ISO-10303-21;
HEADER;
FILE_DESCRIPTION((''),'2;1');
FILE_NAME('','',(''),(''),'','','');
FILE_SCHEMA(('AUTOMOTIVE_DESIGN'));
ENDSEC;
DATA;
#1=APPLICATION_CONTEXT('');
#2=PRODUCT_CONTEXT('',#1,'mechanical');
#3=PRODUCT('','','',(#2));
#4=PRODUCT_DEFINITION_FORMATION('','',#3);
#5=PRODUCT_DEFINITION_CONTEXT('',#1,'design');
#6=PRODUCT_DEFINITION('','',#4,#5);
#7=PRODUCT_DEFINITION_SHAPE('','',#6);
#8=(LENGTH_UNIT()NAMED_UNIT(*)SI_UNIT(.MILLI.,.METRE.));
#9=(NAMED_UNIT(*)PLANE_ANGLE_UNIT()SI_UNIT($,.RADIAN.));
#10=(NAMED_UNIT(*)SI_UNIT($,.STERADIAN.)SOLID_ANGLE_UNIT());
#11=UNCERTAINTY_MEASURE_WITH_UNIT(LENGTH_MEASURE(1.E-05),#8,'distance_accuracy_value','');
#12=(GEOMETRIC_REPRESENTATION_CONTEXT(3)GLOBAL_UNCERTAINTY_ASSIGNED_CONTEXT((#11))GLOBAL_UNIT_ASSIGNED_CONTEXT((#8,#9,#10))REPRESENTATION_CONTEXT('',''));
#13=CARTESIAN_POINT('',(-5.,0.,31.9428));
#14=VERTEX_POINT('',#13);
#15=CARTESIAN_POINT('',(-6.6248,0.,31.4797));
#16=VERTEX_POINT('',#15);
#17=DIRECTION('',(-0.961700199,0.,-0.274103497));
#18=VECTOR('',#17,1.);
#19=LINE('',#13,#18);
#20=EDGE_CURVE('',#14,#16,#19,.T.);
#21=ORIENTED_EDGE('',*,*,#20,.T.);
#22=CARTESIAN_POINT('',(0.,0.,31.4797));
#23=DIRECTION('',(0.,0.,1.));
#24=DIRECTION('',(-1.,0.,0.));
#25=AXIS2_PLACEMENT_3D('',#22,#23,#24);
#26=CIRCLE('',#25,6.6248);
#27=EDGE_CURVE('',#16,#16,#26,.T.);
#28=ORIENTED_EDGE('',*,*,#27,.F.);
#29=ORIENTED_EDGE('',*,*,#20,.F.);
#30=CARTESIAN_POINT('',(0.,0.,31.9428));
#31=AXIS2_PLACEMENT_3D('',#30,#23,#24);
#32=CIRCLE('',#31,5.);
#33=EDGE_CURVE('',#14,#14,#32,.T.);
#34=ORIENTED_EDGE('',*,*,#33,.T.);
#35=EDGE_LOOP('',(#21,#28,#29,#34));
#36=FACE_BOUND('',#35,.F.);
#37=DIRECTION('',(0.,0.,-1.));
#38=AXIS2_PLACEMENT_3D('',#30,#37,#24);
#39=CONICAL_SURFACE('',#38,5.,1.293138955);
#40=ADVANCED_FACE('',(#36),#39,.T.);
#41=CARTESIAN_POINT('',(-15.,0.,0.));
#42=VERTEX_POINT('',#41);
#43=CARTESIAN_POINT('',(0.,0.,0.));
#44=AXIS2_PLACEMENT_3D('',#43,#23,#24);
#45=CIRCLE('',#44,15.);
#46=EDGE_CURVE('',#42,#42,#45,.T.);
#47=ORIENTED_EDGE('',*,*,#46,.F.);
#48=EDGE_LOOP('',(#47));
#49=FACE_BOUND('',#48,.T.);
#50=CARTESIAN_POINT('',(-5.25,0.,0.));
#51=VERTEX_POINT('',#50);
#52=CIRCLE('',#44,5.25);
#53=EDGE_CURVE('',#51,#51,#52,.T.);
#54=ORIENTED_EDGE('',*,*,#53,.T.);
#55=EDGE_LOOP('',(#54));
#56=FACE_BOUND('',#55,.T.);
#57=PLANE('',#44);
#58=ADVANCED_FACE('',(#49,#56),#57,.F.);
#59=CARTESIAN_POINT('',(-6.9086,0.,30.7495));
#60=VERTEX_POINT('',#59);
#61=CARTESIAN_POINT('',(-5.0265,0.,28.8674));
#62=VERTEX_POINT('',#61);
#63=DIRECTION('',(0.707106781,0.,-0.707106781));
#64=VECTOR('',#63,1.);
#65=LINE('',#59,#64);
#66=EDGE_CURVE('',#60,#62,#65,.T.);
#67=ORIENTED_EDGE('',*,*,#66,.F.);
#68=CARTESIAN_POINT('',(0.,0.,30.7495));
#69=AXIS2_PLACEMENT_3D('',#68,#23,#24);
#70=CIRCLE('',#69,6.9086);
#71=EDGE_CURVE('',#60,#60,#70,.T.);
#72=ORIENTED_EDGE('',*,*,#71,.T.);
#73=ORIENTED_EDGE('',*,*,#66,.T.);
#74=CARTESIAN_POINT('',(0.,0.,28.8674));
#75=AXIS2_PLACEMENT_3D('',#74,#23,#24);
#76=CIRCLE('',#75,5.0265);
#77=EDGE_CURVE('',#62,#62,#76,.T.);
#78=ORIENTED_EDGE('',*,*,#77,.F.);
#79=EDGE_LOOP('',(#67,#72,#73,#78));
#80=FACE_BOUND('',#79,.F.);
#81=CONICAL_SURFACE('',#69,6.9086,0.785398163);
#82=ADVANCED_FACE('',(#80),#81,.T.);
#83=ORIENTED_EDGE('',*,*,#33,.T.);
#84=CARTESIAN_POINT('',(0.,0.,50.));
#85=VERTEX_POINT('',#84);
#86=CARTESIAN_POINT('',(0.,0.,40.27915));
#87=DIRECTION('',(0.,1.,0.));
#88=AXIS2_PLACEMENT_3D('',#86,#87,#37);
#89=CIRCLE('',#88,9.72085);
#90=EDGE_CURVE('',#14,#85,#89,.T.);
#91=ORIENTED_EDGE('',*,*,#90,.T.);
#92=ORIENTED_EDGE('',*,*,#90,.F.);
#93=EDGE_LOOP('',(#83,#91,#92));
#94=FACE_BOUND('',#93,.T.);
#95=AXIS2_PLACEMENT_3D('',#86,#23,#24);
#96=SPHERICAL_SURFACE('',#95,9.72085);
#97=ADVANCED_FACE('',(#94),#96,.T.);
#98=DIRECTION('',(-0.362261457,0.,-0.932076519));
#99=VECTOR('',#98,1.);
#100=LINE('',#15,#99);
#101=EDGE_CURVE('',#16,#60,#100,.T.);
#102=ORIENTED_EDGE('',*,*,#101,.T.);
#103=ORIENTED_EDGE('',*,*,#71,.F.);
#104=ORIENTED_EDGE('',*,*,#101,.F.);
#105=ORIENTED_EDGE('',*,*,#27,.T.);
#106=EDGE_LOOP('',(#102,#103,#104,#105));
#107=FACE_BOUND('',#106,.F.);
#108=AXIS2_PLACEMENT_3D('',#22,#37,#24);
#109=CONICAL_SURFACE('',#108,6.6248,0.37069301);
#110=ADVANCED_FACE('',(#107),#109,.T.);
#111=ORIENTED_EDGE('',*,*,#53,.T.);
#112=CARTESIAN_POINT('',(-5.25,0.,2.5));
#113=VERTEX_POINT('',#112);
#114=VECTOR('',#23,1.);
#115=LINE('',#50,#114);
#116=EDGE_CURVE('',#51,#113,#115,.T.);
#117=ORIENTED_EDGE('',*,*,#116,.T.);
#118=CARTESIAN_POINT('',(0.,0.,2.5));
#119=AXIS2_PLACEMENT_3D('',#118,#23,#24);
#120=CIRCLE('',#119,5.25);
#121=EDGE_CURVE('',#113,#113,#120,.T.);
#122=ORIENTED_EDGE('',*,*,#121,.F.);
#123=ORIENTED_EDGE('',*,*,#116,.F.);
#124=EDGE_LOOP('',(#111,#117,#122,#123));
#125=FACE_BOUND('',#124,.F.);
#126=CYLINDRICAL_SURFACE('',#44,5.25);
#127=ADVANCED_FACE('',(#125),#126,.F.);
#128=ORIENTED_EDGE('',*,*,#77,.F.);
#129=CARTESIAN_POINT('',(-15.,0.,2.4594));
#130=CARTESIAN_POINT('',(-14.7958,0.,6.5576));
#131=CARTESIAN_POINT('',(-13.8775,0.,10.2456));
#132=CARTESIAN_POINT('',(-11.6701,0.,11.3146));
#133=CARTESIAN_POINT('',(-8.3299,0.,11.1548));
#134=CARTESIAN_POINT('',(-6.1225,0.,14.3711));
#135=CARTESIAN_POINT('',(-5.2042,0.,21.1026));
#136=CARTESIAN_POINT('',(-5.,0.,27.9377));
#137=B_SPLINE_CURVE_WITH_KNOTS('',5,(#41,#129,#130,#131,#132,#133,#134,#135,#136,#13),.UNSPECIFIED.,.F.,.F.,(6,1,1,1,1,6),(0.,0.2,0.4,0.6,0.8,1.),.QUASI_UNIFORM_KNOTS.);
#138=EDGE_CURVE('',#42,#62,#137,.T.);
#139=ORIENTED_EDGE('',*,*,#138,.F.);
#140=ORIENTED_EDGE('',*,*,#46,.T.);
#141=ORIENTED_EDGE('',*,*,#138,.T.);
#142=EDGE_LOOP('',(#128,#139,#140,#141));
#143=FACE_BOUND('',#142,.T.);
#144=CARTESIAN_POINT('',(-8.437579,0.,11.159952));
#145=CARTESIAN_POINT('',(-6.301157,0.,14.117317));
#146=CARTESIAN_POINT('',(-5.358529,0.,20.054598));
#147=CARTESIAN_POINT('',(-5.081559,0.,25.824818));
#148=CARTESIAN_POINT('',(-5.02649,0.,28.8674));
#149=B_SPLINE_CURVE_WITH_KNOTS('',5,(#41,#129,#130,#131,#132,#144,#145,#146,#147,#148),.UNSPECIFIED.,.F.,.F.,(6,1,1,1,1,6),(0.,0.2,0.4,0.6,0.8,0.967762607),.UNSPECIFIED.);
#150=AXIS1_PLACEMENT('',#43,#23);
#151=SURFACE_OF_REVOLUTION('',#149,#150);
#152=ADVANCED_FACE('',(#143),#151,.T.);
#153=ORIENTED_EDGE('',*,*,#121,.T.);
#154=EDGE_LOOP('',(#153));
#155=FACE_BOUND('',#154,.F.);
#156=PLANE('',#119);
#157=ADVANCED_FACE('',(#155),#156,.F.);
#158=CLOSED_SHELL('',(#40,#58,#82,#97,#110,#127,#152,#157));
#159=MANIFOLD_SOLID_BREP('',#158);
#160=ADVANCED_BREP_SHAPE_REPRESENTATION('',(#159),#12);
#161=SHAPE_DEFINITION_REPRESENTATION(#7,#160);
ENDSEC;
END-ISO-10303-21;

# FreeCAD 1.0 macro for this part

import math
import FreeCAD as App
import Part
import Sketcher

V = App.Vector
Q = App.Units.Quantity

doc = App.newDocument("Part")
body = doc.addObject("PartDesign::Body", "Body")

# Sketch on XZ plane
sketch1 = body.newObject("Sketcher::SketchObject", "Sketch")
sketch1.AttachmentSupport = (doc.getObject("XZ_Plane"), [""])
sketch1.MapMode = "FlatFace"
sketch1.addGeometry([
    Part.LineSegment(V(-5.25, 2.5, 0), V(-5.25, 0, 0)),  # 0
    Part.LineSegment(V(-5.25, 0, 0), V(-15, 0, 0)),  # 1
    Part.BSplineCurve([V(-15, 0, 0), V(-15, 2.4594, 0), V(-14.7958, 6.5576, 0), V(-13.8775, 10.2456, 0), V(-11.6701, 11.3146, 0), V(-8.437579, 11.159952, 0), V(-6.301157, 14.117317, 0), V(-5.358529, 20.054598, 0), V(-5.081559, 25.824818, 0), V(-5.02649, 28.8674, 0)], [6, 1, 1, 1, 1, 6], [0, 0.2, 0.4, 0.6, 0.8, 0.967762607], False, 5, [1, 1, 1, 1, 1, 1, 1, 1, 1, 1], False),  # 2
    Part.LineSegment(V(-5.0265, 28.8674, 0), V(-6.9086, 30.7495, 0)),  # 3
    Part.LineSegment(V(-6.9086, 30.7495, 0), V(-6.6248, 31.4797, 0)),  # 4
    Part.LineSegment(V(-6.6248, 31.4797, 0), V(-5, 31.9428, 0)),  # 5
    Part.ArcOfCircle(Part.Circle(V(0, 40.2791, 0), V(0, 0, 1), 9.7208), math.radians(90), math.radians(239.04524)),  # 6
    Part.LineSegment(V(0, 50, 0), V(0, 2.5, 0)),  # 7
    Part.LineSegment(V(0, 2.5, 0), V(-5.25, 2.5, 0)),  # 8
], False)
sketch1.addConstraint([
    Sketcher.Constraint("Block", 2),
    Sketcher.Constraint("Coincident", 0, 2, 1, 1),
    Sketcher.Constraint("Coincident", 1, 2, 2, 1),
    Sketcher.Constraint("Coincident", 2, 2, 3, 1),
    Sketcher.Constraint("Coincident", 3, 2, 4, 1),
    Sketcher.Constraint("Coincident", 4, 2, 5, 1),
    Sketcher.Constraint("Coincident", 5, 2, 6, 2),
    Sketcher.Constraint("Coincident", 6, 1, 7, 1),
    Sketcher.Constraint("Coincident", 7, 2, 8, 1),
    Sketcher.Constraint("Coincident", 8, 2, 0, 1),
    Sketcher.Constraint("Vertical", 0),
    Sketcher.Constraint("Horizontal", 1),
    Sketcher.Constraint("Vertical", 7),
    Sketcher.Constraint("Horizontal", 8),
    Sketcher.Constraint("PointOnObject", 6, 3, -2),
    Sketcher.Constraint("PointOnObject", 6, 1, -2),
    Sketcher.Constraint("DistanceY", 0, 2, 0, 1, 2.5),
    Sketcher.Constraint("DistanceX", 5, 2, -1, 1, 5.0),
    Sketcher.Constraint("DistanceY", -1, 1, 6, 1, 50.0),
    Sketcher.Constraint("DistanceX", 8, 2, 8, 1, 5.25),
    Sketcher.Constraint("Angle", 3, Q("135 deg")),
    Sketcher.Constraint("Angle", 4, Q("68.7609 deg")),
    Sketcher.Constraint("Radius", 6, 9.7208),
    Sketcher.Constraint("DistanceY", 4, 2, 5, 2, 0.463),
    Sketcher.Constraint("Distance", 3, 2.6617),
])
revolution = body.newObject("PartDesign::Revolution", "Revolution")
revolution.Profile = sketch1
revolution.ReferenceAxis = (sketch1, ["V_Axis"])
revolution.Angle = 360

doc.recompute()
